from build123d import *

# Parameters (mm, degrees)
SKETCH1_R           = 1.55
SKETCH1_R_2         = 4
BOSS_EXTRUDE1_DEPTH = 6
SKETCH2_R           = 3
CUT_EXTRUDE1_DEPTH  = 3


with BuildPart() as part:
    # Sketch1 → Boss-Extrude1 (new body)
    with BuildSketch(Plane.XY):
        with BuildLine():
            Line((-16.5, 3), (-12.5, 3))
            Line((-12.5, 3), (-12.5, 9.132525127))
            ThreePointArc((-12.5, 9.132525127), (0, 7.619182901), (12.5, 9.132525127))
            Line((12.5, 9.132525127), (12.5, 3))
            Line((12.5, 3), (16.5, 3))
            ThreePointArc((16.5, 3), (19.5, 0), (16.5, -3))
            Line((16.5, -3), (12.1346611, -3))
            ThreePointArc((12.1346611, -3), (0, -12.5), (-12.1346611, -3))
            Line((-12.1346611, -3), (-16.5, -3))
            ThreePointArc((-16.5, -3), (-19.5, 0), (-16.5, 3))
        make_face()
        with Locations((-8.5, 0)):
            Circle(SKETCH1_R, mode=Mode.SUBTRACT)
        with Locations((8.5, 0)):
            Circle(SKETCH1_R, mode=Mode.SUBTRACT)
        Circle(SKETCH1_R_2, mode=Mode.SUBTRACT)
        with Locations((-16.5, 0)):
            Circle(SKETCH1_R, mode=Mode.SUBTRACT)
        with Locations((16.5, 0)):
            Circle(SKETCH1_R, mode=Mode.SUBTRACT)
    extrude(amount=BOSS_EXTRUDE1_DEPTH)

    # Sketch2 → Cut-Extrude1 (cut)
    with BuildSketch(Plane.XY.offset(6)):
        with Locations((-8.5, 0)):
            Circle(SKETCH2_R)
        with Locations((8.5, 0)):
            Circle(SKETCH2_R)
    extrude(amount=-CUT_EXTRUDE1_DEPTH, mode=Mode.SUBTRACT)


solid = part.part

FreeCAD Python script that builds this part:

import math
import FreeCAD as App
import Part
import Sketcher

V = App.Vector
Q = App.Units.Quantity

doc = App.newDocument("Part")
body = doc.addObject("PartDesign::Body", "Body")

# Sketch on XY plane
sketch1 = body.newObject("Sketcher::SketchObject", "Sketch")
sketch1.AttachmentSupport = (doc.getObject("XY_Plane"), [""])
sketch1.MapMode = "FlatFace"
sketch1.addGeometry([
    Part.LineSegment(V(-12.5, 3, 0), V(-16.5, 3, 0)),  # 0
    Part.ArcOfCircle(Part.Circle(V(-16.5, 0, 0), V(0, 0, 1), 3), math.radians(90), math.radians(270)),  # 1
    Part.LineSegment(V(-16.5, -3, 0), V(-12.1, -3, 0)),  # 2
    Part.ArcOfCircle(Part.Circle(V(0, 0, 0), V(0, 0, 1), 12.5), math.radians(-166), math.radians(-14)),  # 3
    Part.LineSegment(V(12.1, -3, 0), V(16.5, -3, 0)),  # 4
    Part.ArcOfCircle(Part.Circle(V(16.5, 0, 0), V(0, 0, 1), 3), math.radians(-90), math.radians(90)),  # 5
    Part.LineSegment(V(16.5, 3, 0), V(12.5, 3, 0)),  # 6
    Part.LineSegment(V(12.5, 3, 0), V(12.5, 9.1, 0)),  # 7
    Part.ArcOfCircle(Part.Circle(V(0, 60, 0), V(0, 0, 1), 52.4), math.radians(-104), math.radians(-76)),  # 8
    Part.LineSegment(V(-12.5, 9.1, 0), V(-12.5, 3, 0)),  # 9
    Part.Circle(V(16.5, 0, 0), V(0, 0, 1), 1.6),  # 10
    Part.Circle(V(8.5, 0, 0), V(0, 0, 1), 1.6),  # 11
    Part.Circle(V(0, 0, 0), V(0, 0, 1), 4),  # 12
    Part.Circle(V(-8.5, 0, 0), V(0, 0, 1), 1.6),  # 13
    Part.Circle(V(-16.5, 0, 0), V(0, 0, 1), 1.6),  # 14
], False)
sketch1.addConstraint([
    Sketcher.Constraint("Tangent", 0, 2, 1, 1),
    Sketcher.Constraint("Tangent", 1, 2, 2, 1),
    Sketcher.Constraint("Coincident", 2, 2, 3, 1),
    Sketcher.Constraint("Coincident", 3, 2, 4, 1),
    Sketcher.Constraint("Tangent", 4, 2, 5, 1),
    Sketcher.Constraint("Tangent", 5, 2, 6, 1),
    Sketcher.Constraint("Coincident", 6, 2, 7, 1),
    Sketcher.Constraint("Coincident", 7, 2, 8, 2),
    Sketcher.Constraint("Coincident", 8, 1, 9, 1),
    Sketcher.Constraint("Coincident", 9, 2, 0, 1),
    Sketcher.Constraint("Horizontal", 0),
    Sketcher.Constraint("Horizontal", 2),
    Sketcher.Constraint("Horizontal", 4),
    Sketcher.Constraint("Horizontal", 6),
    Sketcher.Constraint("Vertical", 7),
    Sketcher.Constraint("Vertical", 9),
    Sketcher.Constraint("Coincident", 3, 3, -1, 1),
    Sketcher.Constraint("Coincident", 12, 3, -1, 1),
    Sketcher.Constraint("Coincident", 10, 3, 5, 3),
    Sketcher.Constraint("Coincident", 14, 3, 1, 3),
    Sketcher.Constraint("Equal", 1, 5),
    Sketcher.Constraint("Equal", 10, 11),
    Sketcher.Constraint("Equal", 11, 13),
    Sketcher.Constraint("Equal", 13, 14),
    Sketcher.Constraint("Symmetric", 1, 3, 5, 3, -1, 1),
    Sketcher.Constraint("Symmetric", 11, 3, 13, 3, -1, 1),
    Sketcher.Constraint("Symmetric", 7, 2, 8, 1, -2),
    Sketcher.Constraint("PointOnObject", 1, 3, -1),
    Sketcher.Constraint("PointOnObject", 11, 3, -1),
    Sketcher.Constraint("Diameter", 12, Q("8 mm")),
    Sketcher.Constraint("Radius", 1, Q("3 mm")),
    Sketcher.Constraint("Diameter", 10, Q("3.1 mm")),
    Sketcher.Constraint("Radius", 3, Q("12.5 mm")),
    Sketcher.Constraint("DistanceX", 0, 2, 0, 1, Q("4 mm")),
    Sketcher.Constraint("DistanceY", -1, 1, 8, 3, Q("60 mm")),
    Sketcher.Constraint("DistanceX", 1, 3, 5, 3, Q("33 mm")),
    Sketcher.Constraint("DistanceX", 11, 3, 5, 3, Q("8 mm")),
    Sketcher.Constraint("Radius", 8, Q("52.380817 mm")),
])
pad1 = body.newObject("PartDesign::Pad", "Pad")
pad1.Profile = sketch1
pad1.Length = 6

# Sketch on XY plane
sketch2 = body.newObject("Sketcher::SketchObject", "Sketch001")
sketch2.AttachmentSupport = (doc.getObject("XY_Plane"), [""])
sketch2.MapMode = "FlatFace"
sketch2.AttachmentOffset = App.Placement(V(0, 0, 6), App.Rotation())
sketch2.addGeometry([
    Part.Circle(V(-8.5, 0, 0), V(0, 0, 1), 3),
    Part.Circle(V(8.5, 0, 0), V(0, 0, 1), 3),
], False)
sketch2.addConstraint([
    Sketcher.Constraint("Equal", 0, 1),
    Sketcher.Constraint("Symmetric", 0, 3, 1, 3, -1, 1),
    Sketcher.Constraint("PointOnObject", 0, 3, -1),
    Sketcher.Constraint("Diameter", 0, Q("6 mm")),
    Sketcher.Constraint("DistanceX", 0, 3, 1, 3, Q("17 mm")),
])
pocket1 = body.newObject("PartDesign::Pocket", "Pocket")
pocket1.Profile = sketch2
pocket1.Length = 3

doc.recompute()
